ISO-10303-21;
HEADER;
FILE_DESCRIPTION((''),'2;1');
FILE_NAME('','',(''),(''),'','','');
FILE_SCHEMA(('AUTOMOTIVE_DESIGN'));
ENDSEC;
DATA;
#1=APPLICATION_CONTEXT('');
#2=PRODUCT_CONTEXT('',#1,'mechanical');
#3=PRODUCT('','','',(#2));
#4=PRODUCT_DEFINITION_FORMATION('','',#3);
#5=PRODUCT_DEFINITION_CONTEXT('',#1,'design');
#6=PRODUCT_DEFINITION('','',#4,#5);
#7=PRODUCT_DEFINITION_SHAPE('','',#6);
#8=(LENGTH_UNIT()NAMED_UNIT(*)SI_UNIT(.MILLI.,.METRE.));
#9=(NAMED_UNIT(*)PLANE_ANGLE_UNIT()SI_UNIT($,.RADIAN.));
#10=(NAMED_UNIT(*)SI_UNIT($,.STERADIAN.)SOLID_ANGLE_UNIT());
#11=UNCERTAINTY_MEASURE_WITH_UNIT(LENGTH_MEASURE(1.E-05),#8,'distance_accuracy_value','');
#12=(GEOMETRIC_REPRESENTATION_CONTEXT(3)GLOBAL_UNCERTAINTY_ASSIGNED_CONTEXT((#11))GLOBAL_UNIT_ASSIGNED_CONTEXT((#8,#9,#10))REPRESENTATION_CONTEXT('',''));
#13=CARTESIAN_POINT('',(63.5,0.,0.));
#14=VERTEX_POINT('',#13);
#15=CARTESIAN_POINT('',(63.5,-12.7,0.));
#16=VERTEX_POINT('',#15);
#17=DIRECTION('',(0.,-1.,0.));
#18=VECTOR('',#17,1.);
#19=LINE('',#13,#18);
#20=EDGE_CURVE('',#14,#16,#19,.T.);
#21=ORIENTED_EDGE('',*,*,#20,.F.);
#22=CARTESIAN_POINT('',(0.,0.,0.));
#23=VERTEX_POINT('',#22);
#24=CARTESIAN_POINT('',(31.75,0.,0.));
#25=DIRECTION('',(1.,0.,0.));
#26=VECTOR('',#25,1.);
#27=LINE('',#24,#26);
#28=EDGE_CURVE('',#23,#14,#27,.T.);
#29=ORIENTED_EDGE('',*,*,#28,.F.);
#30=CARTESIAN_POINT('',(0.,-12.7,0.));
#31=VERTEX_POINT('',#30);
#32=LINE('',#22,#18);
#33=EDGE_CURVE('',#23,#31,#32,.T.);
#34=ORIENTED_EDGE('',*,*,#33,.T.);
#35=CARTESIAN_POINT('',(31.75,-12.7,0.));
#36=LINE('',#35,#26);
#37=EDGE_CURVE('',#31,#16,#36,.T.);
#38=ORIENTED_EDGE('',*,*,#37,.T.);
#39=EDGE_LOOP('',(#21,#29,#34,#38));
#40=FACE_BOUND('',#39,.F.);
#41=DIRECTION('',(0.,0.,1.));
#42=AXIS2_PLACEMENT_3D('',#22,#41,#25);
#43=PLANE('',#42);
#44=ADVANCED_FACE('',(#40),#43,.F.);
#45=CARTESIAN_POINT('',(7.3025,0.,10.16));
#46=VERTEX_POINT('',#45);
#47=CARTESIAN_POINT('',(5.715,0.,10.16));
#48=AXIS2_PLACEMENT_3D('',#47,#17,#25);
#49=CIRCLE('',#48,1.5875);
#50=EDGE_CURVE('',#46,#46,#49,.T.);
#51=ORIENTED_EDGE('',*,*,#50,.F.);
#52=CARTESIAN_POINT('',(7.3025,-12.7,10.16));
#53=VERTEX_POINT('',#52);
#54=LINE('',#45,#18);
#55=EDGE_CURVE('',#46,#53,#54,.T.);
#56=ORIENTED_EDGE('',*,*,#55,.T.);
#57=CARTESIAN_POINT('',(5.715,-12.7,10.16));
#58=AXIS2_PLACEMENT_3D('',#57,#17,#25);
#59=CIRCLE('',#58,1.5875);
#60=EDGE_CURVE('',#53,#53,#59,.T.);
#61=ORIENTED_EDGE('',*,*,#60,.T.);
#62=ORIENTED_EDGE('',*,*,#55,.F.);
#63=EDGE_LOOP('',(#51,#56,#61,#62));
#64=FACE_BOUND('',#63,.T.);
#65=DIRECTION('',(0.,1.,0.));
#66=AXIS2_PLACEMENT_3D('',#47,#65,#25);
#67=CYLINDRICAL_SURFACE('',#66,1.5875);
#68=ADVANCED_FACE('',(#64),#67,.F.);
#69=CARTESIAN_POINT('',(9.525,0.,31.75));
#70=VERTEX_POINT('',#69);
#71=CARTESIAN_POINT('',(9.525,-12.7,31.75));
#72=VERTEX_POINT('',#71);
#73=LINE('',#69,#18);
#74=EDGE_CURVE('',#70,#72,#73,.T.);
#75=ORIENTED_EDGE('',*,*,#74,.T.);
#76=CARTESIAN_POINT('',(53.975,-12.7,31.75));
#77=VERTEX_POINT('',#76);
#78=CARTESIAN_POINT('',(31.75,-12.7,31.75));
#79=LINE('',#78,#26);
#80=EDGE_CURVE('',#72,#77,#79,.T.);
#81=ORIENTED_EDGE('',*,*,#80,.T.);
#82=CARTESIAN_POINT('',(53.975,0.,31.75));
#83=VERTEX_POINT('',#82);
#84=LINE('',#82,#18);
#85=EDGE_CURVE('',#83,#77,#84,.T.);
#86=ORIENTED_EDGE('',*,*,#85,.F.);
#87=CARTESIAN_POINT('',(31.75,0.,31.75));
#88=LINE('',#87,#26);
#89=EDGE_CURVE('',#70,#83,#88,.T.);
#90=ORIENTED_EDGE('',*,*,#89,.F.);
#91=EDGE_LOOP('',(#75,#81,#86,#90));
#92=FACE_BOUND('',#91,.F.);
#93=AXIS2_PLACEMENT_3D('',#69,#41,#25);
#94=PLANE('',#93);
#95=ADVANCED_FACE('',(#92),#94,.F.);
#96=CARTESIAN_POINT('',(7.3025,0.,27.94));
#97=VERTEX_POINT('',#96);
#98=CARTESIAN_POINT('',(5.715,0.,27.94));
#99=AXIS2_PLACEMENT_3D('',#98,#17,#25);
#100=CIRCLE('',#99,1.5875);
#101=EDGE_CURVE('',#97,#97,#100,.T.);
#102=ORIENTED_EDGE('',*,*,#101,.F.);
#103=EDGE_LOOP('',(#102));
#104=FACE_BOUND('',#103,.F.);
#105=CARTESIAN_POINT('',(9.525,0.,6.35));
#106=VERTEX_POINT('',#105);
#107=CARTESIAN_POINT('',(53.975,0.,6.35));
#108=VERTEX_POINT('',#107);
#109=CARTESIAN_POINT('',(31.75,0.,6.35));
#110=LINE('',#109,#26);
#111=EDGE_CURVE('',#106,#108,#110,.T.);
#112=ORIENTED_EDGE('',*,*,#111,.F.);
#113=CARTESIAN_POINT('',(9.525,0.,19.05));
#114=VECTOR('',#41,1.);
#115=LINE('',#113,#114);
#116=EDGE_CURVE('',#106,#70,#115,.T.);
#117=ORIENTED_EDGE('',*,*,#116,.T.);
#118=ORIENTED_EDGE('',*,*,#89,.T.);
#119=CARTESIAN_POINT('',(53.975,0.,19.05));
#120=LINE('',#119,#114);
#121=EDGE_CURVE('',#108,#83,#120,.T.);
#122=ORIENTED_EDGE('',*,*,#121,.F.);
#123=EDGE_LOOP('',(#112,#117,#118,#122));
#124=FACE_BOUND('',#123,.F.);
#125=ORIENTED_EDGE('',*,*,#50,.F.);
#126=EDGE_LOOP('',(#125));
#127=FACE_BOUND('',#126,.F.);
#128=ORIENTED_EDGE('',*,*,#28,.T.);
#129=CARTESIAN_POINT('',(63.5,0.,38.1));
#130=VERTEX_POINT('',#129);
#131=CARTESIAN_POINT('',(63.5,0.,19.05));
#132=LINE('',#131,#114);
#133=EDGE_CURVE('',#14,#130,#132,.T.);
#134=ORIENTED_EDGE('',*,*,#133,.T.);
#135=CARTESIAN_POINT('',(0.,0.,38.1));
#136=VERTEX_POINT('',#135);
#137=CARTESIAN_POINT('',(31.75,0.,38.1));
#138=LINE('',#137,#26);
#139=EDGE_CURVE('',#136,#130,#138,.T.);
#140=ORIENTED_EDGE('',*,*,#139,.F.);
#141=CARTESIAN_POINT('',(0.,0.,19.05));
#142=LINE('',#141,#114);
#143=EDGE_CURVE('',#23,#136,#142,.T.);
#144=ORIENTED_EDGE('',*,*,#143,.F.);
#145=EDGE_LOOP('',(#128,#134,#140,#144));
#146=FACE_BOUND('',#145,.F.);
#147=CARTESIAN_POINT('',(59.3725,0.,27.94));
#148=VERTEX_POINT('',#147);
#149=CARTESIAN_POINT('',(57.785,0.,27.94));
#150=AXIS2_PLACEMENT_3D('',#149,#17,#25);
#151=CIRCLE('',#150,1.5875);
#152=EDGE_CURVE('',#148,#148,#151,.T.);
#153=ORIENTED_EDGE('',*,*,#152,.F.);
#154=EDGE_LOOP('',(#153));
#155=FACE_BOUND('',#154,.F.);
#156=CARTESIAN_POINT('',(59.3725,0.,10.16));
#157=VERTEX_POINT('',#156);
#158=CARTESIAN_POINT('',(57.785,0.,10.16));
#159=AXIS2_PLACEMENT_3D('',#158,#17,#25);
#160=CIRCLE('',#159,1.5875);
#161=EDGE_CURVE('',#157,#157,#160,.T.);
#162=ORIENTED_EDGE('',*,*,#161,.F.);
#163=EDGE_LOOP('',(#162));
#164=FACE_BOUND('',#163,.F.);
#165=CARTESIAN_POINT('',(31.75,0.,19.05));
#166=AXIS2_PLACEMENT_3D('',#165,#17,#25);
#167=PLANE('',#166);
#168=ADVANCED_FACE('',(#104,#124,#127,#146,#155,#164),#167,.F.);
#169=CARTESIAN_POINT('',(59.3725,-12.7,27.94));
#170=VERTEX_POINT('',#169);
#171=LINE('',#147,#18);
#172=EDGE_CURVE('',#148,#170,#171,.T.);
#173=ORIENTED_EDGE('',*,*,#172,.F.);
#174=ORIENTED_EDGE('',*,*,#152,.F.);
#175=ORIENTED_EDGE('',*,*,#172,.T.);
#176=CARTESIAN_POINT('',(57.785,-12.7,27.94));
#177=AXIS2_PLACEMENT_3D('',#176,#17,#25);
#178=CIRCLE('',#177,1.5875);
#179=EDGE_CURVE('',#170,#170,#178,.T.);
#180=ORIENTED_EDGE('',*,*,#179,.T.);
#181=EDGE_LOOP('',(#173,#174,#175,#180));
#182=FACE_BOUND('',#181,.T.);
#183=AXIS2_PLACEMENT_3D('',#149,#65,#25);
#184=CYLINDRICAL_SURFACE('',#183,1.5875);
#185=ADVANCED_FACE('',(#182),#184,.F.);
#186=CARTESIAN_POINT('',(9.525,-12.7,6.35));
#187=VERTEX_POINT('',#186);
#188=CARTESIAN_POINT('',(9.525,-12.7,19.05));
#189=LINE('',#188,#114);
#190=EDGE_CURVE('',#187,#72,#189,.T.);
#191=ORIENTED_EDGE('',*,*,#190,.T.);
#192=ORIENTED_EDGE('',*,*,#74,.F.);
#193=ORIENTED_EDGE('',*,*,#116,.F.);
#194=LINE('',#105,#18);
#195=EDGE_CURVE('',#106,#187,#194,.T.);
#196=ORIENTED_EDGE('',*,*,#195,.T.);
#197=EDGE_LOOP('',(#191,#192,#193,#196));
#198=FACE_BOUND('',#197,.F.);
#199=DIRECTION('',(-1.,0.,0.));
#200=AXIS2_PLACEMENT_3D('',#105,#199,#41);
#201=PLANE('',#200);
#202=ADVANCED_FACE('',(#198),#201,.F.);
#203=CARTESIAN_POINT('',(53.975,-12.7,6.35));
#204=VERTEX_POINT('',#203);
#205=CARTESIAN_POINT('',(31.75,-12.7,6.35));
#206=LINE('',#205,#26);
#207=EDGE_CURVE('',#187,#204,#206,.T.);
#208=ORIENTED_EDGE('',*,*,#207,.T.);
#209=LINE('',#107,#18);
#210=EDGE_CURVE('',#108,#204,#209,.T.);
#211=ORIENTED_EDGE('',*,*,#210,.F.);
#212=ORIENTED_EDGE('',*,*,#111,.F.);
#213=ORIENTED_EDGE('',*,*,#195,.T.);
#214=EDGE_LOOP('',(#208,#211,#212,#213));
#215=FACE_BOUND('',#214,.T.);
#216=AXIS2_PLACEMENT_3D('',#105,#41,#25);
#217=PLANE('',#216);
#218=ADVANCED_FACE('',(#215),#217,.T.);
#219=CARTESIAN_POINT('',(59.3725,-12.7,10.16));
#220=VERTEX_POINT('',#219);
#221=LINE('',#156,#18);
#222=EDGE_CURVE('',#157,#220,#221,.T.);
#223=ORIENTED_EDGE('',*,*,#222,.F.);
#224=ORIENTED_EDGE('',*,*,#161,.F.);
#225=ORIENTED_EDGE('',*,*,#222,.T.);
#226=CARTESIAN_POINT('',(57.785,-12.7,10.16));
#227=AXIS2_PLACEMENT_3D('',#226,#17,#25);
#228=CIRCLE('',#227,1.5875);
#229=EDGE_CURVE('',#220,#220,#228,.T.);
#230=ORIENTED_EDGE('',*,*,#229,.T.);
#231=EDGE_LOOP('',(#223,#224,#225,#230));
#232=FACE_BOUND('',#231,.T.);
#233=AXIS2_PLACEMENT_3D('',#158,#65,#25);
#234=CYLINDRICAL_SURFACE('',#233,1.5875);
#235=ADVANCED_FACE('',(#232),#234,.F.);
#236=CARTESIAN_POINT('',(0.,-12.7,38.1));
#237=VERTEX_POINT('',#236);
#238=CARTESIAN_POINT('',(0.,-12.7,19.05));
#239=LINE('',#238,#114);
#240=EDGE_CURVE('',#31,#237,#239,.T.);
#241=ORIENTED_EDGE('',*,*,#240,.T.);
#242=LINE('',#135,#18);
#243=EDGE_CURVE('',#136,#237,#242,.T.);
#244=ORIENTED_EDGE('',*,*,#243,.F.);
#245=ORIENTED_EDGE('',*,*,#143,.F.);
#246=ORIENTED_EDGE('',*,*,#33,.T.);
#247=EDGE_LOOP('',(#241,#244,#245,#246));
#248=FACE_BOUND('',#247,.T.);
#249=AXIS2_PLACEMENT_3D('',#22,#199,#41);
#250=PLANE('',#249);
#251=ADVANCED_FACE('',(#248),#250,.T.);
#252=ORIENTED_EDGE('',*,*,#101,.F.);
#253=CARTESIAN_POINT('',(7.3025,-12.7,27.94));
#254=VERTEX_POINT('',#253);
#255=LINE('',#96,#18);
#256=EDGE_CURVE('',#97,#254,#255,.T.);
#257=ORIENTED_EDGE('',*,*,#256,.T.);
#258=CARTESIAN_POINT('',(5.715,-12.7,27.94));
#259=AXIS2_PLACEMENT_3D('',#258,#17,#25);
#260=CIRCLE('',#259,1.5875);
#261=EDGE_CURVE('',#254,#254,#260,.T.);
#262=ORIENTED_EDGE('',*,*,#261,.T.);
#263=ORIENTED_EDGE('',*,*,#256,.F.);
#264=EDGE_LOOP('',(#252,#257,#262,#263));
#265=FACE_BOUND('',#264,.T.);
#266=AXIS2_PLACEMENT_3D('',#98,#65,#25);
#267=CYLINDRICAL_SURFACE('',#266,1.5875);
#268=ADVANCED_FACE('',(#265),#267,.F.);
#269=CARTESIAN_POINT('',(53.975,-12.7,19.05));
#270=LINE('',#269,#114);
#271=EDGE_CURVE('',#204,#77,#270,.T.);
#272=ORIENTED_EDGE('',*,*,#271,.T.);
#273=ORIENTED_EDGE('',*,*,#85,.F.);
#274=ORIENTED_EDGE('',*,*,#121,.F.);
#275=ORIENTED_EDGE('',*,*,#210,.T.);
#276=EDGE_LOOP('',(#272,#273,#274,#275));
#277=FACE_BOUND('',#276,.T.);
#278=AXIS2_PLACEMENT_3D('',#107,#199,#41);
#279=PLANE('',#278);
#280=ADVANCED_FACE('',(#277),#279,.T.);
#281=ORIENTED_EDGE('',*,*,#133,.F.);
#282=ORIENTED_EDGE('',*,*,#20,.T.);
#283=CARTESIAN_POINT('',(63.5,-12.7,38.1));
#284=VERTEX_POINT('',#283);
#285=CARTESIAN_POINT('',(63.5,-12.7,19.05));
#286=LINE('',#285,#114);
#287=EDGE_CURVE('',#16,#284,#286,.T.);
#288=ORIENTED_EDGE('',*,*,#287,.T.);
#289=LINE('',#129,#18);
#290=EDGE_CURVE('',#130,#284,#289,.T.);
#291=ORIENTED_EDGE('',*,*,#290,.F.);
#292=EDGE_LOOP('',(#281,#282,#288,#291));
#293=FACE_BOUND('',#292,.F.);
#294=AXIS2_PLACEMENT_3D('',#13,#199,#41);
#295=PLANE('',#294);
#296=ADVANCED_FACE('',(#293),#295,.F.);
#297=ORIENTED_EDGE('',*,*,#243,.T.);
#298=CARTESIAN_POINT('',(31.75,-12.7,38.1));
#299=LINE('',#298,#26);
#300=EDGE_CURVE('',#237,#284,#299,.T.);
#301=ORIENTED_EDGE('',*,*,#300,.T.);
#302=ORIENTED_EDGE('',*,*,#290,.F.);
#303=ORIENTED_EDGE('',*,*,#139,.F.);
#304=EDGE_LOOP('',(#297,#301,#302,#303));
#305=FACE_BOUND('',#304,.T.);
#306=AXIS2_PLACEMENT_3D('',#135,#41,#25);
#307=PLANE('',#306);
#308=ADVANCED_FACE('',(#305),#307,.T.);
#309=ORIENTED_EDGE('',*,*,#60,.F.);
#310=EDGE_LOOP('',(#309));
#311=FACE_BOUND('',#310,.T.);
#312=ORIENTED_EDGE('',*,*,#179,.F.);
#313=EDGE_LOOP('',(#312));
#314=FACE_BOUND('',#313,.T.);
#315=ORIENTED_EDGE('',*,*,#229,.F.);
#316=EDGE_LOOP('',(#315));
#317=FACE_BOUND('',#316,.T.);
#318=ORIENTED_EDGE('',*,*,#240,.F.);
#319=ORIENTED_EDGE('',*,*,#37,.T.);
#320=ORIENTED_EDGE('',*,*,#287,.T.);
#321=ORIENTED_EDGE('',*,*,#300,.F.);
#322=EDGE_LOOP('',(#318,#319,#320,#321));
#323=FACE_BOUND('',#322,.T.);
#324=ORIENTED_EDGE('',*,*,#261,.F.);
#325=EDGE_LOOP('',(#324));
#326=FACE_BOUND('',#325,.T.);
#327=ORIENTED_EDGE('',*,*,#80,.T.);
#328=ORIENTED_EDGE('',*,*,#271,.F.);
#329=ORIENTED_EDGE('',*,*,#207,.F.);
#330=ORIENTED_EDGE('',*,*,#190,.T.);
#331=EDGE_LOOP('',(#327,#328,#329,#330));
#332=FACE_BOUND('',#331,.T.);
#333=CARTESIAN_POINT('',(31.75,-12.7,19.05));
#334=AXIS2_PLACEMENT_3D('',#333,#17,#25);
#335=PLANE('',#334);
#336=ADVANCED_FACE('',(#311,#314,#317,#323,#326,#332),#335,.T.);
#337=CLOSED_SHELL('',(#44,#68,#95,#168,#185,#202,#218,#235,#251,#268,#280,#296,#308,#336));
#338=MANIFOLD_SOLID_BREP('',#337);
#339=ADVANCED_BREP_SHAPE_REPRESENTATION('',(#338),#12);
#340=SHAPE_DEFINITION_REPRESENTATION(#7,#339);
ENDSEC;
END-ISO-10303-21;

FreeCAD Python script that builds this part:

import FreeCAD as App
import Part
import Sketcher
Q = App.Units.Quantity


def add_polygon(sketch, points):
    """Adds a closed chain of lines whose ends are joined by coincident constraints."""
    first, n = sketch.GeometryCount, len(points)
    for a, b in zip(points, points[1:] + points[:1]):
        sketch.addGeometry(Part.LineSegment(App.Vector(*a, 0), App.Vector(*b, 0)), False)
    for i in range(n):
        sketch.addConstraint(Sketcher.Constraint("Coincident", first + i, 2, first + (i + 1) % n, 1))

doc = App.newDocument("Part")
body = doc.addObject("PartDesign::Body", "Body")

sketch1 = doc.addObject("Sketcher::SketchObject", "Sketch")
body.addObject(sketch1)
sketch1.AttachmentSupport = (doc.XZ_Plane, [""])
sketch1.MapMode = "FlatFace"
add_polygon(sketch1, [(0, 38.1), (0, 0), (63.5, 0), (63.5, 38.1)])
sketch1.addGeometry(Part.Circle(App.Vector(5.7, 10.2, 0), App.Vector(0, 0, 1), 1.6), False)
sketch1.addGeometry(Part.Circle(App.Vector(57.8, 10.2, 0), App.Vector(0, 0, 1), 1.6), False)
add_polygon(sketch1, [(54, 6.3), (9.5, 6.3), (9.5, 31.8), (54, 31.8)])
sketch1.addGeometry(Part.Circle(App.Vector(5.7, 27.9, 0), App.Vector(0, 0, 1), 1.6), False)
sketch1.addGeometry(Part.Circle(App.Vector(57.8, 27.9, 0), App.Vector(0, 0, 1), 1.6), False)
sketch1.addConstraint([
    Sketcher.Constraint("Vertical", 0),
    Sketcher.Constraint("Horizontal", 1),
    Sketcher.Constraint("Vertical", 2),
    Sketcher.Constraint("Horizontal", 3),
    Sketcher.Constraint("Horizontal", 6),
    Sketcher.Constraint("Vertical", 7),
    Sketcher.Constraint("Horizontal", 8),
    Sketcher.Constraint("Vertical", 9),
    Sketcher.Constraint("Coincident", 0, 2, -1, 1),
    Sketcher.Constraint("Equal", 4, 5),
    Sketcher.Constraint("Equal", 5, 10),
    Sketcher.Constraint("Equal", 10, 11),
    Sketcher.Constraint("Horizontal", 4, 3, 5, 3),
    Sketcher.Constraint("Horizontal", 10, 3, 11, 3),
    Sketcher.Constraint("Vertical", 4, 3, 10, 3),
    Sketcher.Constraint("Vertical", 5, 3, 11, 3),
    Sketcher.Constraint("DistanceY", 7, 1, 7, 2, Q("1 in")),
    Sketcher.Constraint("Diameter", 4, Q("0.125 in")),
    Sketcher.Constraint("DistanceX", 1, 1, 1, 2, Q("2.5 in")),
    Sketcher.Constraint("DistanceY", 0, 2, 0, 1, Q("1.5 in")),
    Sketcher.Constraint("DistanceX", 6, 2, 6, 1, Q("1.75 in")),
    Sketcher.Constraint("DistanceY", -1, 1, 4, 3, Q("0.4 in")),
    Sketcher.Constraint("DistanceY", -1, 1, 10, 3, Q("1.1 in")),
    Sketcher.Constraint("DistanceX", 6, 2, 5, 3, Q("1.9 in")),
    Sketcher.Constraint("DistanceY", -1, 1, 6, 2, Q("0.25 in")),
    Sketcher.Constraint("DistanceX", 4, 3, 5, 3, Q("2.05 in")),
    Sketcher.Constraint("DistanceX", -1, 1, 4, 3, Q("0.225 in")),
])
pad1 = doc.addObject("PartDesign::Pad", "Pad")
body.addObject(pad1)
pad1.Profile = sketch1
pad1.Length = Q("0.5 in")

doc.recompute()
